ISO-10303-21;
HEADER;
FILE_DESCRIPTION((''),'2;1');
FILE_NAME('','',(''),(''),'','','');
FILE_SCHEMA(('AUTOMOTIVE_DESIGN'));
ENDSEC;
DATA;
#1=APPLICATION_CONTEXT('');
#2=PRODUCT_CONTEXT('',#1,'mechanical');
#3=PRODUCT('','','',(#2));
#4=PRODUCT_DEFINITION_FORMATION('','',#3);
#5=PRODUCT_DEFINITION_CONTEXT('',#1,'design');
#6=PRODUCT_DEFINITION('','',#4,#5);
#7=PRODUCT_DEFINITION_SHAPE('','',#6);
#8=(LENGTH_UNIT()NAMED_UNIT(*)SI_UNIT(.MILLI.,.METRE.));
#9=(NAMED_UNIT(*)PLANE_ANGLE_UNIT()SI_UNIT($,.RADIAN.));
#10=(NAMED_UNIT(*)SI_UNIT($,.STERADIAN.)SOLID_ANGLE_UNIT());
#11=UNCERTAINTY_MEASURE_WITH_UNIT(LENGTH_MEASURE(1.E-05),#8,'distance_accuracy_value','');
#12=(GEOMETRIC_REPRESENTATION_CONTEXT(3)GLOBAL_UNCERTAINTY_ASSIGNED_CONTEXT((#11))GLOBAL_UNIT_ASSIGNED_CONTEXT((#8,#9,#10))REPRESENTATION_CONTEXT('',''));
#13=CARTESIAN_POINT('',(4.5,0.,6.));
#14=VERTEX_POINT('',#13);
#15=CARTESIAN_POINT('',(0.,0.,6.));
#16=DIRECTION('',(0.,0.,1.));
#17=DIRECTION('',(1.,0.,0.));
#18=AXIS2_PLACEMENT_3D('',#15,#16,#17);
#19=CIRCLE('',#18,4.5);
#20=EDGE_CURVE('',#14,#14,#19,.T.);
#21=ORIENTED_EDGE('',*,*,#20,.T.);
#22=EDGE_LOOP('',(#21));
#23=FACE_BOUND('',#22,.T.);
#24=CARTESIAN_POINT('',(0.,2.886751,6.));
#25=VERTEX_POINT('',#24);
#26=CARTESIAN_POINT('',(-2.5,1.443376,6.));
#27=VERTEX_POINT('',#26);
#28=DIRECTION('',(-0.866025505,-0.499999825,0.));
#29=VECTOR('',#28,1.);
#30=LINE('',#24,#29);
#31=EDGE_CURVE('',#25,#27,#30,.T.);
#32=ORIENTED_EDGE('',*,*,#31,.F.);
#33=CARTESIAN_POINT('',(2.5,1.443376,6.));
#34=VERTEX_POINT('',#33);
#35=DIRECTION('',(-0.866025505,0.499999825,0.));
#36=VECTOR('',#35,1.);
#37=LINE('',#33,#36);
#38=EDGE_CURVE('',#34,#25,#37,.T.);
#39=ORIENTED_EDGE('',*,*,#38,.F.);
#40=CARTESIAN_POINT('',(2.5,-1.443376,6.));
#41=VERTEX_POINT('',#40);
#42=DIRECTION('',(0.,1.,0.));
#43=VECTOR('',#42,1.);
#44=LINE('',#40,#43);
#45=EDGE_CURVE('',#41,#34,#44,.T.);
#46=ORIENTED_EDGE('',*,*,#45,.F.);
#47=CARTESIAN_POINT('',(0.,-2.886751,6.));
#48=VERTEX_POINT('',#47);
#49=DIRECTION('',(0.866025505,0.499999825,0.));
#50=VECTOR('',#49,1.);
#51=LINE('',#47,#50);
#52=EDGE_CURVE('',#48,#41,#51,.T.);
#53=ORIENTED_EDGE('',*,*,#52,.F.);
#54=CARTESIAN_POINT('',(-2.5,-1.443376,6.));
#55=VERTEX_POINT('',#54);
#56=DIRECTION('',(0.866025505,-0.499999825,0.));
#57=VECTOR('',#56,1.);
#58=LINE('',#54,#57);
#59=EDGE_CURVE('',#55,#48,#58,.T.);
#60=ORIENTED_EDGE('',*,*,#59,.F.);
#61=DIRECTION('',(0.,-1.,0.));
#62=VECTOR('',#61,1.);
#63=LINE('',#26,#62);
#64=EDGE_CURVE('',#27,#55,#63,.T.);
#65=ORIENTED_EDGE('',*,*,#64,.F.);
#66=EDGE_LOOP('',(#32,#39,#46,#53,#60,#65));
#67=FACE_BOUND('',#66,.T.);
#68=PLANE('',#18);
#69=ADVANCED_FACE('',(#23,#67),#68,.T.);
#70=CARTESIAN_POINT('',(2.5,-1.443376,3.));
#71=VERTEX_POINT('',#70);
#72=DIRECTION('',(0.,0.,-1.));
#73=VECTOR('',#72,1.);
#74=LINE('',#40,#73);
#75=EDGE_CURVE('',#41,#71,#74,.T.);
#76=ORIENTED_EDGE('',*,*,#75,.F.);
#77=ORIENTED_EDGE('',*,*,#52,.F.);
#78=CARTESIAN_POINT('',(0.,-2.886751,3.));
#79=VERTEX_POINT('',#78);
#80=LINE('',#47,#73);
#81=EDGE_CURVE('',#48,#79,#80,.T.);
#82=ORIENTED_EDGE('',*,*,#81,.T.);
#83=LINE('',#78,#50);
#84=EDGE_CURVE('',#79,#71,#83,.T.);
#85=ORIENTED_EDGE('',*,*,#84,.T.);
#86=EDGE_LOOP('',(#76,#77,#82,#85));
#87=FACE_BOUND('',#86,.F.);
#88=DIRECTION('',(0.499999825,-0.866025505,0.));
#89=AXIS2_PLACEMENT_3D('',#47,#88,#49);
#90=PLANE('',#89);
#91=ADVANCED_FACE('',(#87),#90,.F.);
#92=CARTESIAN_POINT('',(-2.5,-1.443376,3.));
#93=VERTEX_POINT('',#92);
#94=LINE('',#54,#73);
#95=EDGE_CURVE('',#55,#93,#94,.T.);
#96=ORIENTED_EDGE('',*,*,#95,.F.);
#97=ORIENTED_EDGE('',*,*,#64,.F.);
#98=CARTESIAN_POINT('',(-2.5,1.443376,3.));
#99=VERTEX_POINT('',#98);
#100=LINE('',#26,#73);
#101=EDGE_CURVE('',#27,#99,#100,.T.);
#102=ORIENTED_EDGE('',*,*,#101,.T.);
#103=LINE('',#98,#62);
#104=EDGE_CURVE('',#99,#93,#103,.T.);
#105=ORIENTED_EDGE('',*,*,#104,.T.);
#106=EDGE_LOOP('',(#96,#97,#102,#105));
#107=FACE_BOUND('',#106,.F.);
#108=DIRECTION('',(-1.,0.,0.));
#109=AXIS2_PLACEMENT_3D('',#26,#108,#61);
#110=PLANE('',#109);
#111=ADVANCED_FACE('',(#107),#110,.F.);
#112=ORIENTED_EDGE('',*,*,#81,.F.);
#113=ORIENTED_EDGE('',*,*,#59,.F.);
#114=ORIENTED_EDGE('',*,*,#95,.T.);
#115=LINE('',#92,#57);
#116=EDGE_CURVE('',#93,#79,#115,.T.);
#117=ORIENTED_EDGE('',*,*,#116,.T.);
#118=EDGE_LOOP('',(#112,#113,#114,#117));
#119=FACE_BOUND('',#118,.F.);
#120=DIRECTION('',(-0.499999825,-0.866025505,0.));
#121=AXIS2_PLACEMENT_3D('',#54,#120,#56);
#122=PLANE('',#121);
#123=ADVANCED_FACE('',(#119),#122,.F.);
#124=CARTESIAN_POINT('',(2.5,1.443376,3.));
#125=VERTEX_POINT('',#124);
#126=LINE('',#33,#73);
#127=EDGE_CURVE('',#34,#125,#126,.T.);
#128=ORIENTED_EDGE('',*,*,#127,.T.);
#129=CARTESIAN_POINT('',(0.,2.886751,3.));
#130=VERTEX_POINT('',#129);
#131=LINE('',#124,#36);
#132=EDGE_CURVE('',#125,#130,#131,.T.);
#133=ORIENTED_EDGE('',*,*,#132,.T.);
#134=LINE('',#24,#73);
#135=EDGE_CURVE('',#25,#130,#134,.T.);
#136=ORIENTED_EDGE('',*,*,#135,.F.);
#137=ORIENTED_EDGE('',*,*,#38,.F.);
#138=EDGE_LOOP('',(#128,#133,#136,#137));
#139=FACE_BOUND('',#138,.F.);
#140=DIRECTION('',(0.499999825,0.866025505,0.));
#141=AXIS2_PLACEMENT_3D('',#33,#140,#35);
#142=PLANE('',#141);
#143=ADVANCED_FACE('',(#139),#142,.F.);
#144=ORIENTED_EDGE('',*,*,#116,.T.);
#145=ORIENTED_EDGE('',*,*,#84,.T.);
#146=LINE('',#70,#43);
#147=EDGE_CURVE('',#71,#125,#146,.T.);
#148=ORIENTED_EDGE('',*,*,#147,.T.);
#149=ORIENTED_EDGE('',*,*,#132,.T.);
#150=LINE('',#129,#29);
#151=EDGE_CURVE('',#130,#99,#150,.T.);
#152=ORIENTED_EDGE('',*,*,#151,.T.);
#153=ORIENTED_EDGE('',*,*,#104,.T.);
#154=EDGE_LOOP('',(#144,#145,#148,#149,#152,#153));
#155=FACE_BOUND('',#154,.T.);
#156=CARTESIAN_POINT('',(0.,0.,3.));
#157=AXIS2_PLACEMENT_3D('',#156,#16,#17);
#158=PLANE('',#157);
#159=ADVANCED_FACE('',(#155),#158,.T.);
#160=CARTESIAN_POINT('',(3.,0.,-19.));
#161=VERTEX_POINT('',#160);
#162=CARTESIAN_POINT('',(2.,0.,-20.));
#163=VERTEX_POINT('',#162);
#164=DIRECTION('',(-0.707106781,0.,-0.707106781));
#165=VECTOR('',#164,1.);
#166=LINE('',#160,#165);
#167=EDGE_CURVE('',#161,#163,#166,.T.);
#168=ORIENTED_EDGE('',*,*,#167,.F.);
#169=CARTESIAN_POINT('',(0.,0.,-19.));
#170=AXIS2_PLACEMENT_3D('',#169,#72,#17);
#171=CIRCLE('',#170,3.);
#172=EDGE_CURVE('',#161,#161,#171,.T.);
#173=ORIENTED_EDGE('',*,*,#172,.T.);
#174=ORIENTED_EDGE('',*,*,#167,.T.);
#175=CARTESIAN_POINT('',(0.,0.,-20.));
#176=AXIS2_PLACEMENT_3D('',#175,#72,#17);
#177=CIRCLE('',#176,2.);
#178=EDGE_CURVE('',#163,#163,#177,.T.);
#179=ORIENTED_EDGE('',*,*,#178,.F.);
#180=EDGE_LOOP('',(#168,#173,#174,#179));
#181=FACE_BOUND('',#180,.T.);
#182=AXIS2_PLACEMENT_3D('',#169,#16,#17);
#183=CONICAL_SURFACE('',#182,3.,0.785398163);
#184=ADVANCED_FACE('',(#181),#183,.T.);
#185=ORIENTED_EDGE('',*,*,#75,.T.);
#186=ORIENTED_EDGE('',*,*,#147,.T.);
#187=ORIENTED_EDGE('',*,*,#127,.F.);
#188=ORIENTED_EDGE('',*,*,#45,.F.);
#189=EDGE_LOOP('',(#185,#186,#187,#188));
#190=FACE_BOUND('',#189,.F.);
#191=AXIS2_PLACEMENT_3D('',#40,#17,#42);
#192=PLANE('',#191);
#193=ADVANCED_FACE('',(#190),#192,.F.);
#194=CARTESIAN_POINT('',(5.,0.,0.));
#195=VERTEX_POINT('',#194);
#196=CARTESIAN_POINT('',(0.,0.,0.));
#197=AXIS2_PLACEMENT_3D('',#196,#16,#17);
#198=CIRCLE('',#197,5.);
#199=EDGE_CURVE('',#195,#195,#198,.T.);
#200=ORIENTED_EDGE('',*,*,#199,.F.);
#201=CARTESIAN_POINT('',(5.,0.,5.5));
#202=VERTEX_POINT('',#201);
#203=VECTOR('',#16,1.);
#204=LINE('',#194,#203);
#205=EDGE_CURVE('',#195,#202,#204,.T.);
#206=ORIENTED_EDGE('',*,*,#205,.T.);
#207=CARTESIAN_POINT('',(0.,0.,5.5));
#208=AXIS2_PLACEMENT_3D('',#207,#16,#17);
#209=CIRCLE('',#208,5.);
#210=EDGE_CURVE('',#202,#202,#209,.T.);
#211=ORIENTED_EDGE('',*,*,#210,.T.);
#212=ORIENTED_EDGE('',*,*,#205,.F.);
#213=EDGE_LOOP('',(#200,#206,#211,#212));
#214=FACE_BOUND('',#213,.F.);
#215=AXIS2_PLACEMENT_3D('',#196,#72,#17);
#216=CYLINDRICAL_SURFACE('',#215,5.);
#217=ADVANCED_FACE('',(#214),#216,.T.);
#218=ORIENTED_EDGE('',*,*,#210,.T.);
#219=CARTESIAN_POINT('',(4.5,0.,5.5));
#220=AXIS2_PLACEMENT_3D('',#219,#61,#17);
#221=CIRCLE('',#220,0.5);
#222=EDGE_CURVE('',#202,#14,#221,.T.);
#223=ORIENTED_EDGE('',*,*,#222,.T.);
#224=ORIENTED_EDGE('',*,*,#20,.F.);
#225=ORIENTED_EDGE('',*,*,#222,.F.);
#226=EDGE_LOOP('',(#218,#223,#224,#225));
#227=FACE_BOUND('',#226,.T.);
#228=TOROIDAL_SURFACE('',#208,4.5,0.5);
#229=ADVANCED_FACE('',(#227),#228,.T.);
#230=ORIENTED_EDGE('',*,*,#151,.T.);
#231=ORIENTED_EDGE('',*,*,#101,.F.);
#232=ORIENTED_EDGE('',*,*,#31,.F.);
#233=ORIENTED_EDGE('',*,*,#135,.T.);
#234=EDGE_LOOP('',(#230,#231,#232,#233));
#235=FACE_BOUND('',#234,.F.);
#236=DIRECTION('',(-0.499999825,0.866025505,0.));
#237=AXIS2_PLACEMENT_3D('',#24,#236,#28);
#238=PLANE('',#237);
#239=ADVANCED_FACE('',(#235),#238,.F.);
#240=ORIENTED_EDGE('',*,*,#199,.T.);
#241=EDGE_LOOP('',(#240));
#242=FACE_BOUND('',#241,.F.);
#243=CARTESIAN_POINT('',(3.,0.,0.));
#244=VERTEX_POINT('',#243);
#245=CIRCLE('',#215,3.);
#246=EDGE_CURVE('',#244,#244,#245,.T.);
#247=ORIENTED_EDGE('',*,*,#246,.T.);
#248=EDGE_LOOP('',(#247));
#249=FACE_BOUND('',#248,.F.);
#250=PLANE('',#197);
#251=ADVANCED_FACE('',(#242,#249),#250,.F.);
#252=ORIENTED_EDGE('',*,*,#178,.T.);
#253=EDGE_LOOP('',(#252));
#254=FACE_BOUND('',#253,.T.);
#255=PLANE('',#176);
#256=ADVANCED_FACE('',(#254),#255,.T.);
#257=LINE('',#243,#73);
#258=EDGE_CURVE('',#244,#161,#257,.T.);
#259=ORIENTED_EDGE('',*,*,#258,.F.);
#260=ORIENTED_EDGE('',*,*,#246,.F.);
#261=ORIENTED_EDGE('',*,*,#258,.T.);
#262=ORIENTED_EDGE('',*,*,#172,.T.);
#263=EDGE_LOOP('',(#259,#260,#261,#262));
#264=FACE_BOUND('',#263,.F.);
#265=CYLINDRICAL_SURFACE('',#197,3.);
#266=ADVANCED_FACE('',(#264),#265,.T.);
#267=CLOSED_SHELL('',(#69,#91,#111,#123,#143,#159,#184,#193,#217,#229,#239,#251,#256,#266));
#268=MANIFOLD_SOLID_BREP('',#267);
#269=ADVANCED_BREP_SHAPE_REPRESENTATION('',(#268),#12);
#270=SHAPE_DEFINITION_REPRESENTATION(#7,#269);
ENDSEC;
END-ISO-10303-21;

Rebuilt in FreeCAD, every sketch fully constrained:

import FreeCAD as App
import Part
import Sketcher
Q = App.Units.Quantity


def edges_at(feature, points):
    """Names of the edges that pass closest to the given points."""
    edges = feature.Shape.Edges
    near = lambda p: min(range(len(edges)), key=lambda i: edges[i].distToShape(Part.Vertex(*p))[0])
    return sorted({f"Edge{near(p) + 1}" for p in points})

doc = App.newDocument("Part")
params = doc.addObject("Spreadsheet::Sheet", "Params")
for row, (alias, value) in enumerate([
    ("sketch1_diameter", "10 mm"),
    ("pad1_length", "6 mm"),
    ("fillet_radius", "0.5 mm"),
    ("pocket1_length", "3 mm"),
    ("sketch3_diameter", "6 mm"),
    ("pad2_length", "20 mm"),
    ("chamfer_size", "1 mm"),
], start=1):
    params.set(f"A{row}", alias)
    params.set(f"B{row}", "=" + value)
    params.setAlias(f"B{row}", alias)

body = doc.addObject("PartDesign::Body", "Body")

# Sketch on XY plane
sketch1 = doc.addObject("Sketcher::SketchObject", "Sketch")
body.addObject(sketch1)
sketch1.AttachmentSupport = (doc.XY_Plane, [""])
sketch1.MapMode = "FlatFace"
sketch1.addGeometry(Part.Circle(App.Vector(0, 0, 0), App.Vector(0, 0, 1), 5), False)
sketch1.addConstraint([
    Sketcher.Constraint("Coincident", 0, 3, -1, 1),
    Sketcher.Constraint("Diameter", 0, Q("10 mm")),
])
sketch1.setExpression("Constraints[1]", "Params.sketch1_diameter")
pad1 = doc.addObject("PartDesign::Pad", "Pad")
body.addObject(pad1)
pad1.Profile = sketch1
pad1.setExpression("Length", "Params.pad1_length")
doc.recompute()

fillet = doc.addObject("PartDesign::Fillet", "Fillet")
body.addObject(fillet)
fillet.Base = (pad1, edges_at(pad1, [(-5, 0, 6)]))
fillet.setExpression("Radius", "Params.fillet_radius")

# Sketch on XY plane
sketch2 = doc.addObject("Sketcher::SketchObject", "Sketch001")
body.addObject(sketch2)
sketch2.AttachmentSupport = (doc.XY_Plane, [""])
sketch2.MapMode = "FlatFace"
sketch2.AttachmentOffset = App.Placement(App.Vector(0, 0, 6), App.Rotation())
sketch2.addGeometry([
    Part.LineSegment(App.Vector(2.5, 1.443376, 0), App.Vector(0, 2.886751, 0)),  # 0
    Part.LineSegment(App.Vector(0, 2.886751, 0), App.Vector(-2.5, 1.443376, 0)),  # 1
    Part.LineSegment(App.Vector(-2.5, 1.443376, 0), App.Vector(-2.5, -1.443376, 0)),  # 2
    Part.LineSegment(App.Vector(-2.5, -1.443376, 0), App.Vector(0, -2.886751, 0)),  # 3
    Part.LineSegment(App.Vector(0, -2.886751, 0), App.Vector(2.5, -1.443376, 0)),  # 4
    Part.LineSegment(App.Vector(2.5, -1.443376, 0), App.Vector(2.5, 1.443376, 0)),  # 5
], False)
sketch2.addConstraint([
    Sketcher.Constraint("Coincident", 0, 2, 1, 1),
    Sketcher.Constraint("Coincident", 1, 2, 2, 1),
    Sketcher.Constraint("Coincident", 2, 2, 3, 1),
    Sketcher.Constraint("Coincident", 3, 2, 4, 1),
    Sketcher.Constraint("Coincident", 4, 2, 5, 1),
    Sketcher.Constraint("Coincident", 5, 2, 0, 1),
    Sketcher.Constraint("Vertical", 2),
    Sketcher.Constraint("Vertical", 5),
    Sketcher.Constraint("Symmetric", 0, 2, 3, 2, -1, 1),
    Sketcher.Constraint("Symmetric", 1, 2, 4, 2, -1, 1),
    Sketcher.Constraint("PointOnObject", 0, 2, -2),
    Sketcher.Constraint("Parallel", 0, 3),
    Sketcher.Constraint("Horizontal", 2, 2, 4, 2),
    Sketcher.Constraint("Angle", 0, Q("150.000012 deg")),
    Sketcher.Constraint("DistanceX", 2, 2, 4, 2, Q("5 mm")),
    Sketcher.Constraint("DistanceY", 2, 2, 2, 1, Q("2.886752 mm")),
])
pocket1 = doc.addObject("PartDesign::Pocket", "Pocket")
body.addObject(pocket1)
pocket1.Profile = sketch2
pocket1.setExpression("Length", "Params.pocket1_length")

# Sketch on XY plane
sketch3 = doc.addObject("Sketcher::SketchObject", "Sketch002")
body.addObject(sketch3)
sketch3.AttachmentSupport = (doc.XY_Plane, [""])
sketch3.MapMode = "FlatFace"
sketch3.addGeometry(Part.Circle(App.Vector(0, 0, 0), App.Vector(0, 0, 1), 3), False)
sketch3.addConstraint([
    Sketcher.Constraint("Coincident", 0, 3, -1, 1),
    Sketcher.Constraint("Diameter", 0, Q("6 mm")),
])
sketch3.setExpression("Constraints[1]", "Params.sketch3_diameter")
pad2 = doc.addObject("PartDesign::Pad", "Pad001")
body.addObject(pad2)
pad2.Profile = sketch3
pad2.setExpression("Length", "Params.pad2_length")
pad2.Reversed = True
doc.recompute()

chamfer = doc.addObject("PartDesign::Chamfer", "Chamfer")
body.addObject(chamfer)
chamfer.Base = (pad2, edges_at(pad2, [(-3, 0, -20)]))
chamfer.setExpression("Size", "Params.chamfer_size")

doc.recompute()
